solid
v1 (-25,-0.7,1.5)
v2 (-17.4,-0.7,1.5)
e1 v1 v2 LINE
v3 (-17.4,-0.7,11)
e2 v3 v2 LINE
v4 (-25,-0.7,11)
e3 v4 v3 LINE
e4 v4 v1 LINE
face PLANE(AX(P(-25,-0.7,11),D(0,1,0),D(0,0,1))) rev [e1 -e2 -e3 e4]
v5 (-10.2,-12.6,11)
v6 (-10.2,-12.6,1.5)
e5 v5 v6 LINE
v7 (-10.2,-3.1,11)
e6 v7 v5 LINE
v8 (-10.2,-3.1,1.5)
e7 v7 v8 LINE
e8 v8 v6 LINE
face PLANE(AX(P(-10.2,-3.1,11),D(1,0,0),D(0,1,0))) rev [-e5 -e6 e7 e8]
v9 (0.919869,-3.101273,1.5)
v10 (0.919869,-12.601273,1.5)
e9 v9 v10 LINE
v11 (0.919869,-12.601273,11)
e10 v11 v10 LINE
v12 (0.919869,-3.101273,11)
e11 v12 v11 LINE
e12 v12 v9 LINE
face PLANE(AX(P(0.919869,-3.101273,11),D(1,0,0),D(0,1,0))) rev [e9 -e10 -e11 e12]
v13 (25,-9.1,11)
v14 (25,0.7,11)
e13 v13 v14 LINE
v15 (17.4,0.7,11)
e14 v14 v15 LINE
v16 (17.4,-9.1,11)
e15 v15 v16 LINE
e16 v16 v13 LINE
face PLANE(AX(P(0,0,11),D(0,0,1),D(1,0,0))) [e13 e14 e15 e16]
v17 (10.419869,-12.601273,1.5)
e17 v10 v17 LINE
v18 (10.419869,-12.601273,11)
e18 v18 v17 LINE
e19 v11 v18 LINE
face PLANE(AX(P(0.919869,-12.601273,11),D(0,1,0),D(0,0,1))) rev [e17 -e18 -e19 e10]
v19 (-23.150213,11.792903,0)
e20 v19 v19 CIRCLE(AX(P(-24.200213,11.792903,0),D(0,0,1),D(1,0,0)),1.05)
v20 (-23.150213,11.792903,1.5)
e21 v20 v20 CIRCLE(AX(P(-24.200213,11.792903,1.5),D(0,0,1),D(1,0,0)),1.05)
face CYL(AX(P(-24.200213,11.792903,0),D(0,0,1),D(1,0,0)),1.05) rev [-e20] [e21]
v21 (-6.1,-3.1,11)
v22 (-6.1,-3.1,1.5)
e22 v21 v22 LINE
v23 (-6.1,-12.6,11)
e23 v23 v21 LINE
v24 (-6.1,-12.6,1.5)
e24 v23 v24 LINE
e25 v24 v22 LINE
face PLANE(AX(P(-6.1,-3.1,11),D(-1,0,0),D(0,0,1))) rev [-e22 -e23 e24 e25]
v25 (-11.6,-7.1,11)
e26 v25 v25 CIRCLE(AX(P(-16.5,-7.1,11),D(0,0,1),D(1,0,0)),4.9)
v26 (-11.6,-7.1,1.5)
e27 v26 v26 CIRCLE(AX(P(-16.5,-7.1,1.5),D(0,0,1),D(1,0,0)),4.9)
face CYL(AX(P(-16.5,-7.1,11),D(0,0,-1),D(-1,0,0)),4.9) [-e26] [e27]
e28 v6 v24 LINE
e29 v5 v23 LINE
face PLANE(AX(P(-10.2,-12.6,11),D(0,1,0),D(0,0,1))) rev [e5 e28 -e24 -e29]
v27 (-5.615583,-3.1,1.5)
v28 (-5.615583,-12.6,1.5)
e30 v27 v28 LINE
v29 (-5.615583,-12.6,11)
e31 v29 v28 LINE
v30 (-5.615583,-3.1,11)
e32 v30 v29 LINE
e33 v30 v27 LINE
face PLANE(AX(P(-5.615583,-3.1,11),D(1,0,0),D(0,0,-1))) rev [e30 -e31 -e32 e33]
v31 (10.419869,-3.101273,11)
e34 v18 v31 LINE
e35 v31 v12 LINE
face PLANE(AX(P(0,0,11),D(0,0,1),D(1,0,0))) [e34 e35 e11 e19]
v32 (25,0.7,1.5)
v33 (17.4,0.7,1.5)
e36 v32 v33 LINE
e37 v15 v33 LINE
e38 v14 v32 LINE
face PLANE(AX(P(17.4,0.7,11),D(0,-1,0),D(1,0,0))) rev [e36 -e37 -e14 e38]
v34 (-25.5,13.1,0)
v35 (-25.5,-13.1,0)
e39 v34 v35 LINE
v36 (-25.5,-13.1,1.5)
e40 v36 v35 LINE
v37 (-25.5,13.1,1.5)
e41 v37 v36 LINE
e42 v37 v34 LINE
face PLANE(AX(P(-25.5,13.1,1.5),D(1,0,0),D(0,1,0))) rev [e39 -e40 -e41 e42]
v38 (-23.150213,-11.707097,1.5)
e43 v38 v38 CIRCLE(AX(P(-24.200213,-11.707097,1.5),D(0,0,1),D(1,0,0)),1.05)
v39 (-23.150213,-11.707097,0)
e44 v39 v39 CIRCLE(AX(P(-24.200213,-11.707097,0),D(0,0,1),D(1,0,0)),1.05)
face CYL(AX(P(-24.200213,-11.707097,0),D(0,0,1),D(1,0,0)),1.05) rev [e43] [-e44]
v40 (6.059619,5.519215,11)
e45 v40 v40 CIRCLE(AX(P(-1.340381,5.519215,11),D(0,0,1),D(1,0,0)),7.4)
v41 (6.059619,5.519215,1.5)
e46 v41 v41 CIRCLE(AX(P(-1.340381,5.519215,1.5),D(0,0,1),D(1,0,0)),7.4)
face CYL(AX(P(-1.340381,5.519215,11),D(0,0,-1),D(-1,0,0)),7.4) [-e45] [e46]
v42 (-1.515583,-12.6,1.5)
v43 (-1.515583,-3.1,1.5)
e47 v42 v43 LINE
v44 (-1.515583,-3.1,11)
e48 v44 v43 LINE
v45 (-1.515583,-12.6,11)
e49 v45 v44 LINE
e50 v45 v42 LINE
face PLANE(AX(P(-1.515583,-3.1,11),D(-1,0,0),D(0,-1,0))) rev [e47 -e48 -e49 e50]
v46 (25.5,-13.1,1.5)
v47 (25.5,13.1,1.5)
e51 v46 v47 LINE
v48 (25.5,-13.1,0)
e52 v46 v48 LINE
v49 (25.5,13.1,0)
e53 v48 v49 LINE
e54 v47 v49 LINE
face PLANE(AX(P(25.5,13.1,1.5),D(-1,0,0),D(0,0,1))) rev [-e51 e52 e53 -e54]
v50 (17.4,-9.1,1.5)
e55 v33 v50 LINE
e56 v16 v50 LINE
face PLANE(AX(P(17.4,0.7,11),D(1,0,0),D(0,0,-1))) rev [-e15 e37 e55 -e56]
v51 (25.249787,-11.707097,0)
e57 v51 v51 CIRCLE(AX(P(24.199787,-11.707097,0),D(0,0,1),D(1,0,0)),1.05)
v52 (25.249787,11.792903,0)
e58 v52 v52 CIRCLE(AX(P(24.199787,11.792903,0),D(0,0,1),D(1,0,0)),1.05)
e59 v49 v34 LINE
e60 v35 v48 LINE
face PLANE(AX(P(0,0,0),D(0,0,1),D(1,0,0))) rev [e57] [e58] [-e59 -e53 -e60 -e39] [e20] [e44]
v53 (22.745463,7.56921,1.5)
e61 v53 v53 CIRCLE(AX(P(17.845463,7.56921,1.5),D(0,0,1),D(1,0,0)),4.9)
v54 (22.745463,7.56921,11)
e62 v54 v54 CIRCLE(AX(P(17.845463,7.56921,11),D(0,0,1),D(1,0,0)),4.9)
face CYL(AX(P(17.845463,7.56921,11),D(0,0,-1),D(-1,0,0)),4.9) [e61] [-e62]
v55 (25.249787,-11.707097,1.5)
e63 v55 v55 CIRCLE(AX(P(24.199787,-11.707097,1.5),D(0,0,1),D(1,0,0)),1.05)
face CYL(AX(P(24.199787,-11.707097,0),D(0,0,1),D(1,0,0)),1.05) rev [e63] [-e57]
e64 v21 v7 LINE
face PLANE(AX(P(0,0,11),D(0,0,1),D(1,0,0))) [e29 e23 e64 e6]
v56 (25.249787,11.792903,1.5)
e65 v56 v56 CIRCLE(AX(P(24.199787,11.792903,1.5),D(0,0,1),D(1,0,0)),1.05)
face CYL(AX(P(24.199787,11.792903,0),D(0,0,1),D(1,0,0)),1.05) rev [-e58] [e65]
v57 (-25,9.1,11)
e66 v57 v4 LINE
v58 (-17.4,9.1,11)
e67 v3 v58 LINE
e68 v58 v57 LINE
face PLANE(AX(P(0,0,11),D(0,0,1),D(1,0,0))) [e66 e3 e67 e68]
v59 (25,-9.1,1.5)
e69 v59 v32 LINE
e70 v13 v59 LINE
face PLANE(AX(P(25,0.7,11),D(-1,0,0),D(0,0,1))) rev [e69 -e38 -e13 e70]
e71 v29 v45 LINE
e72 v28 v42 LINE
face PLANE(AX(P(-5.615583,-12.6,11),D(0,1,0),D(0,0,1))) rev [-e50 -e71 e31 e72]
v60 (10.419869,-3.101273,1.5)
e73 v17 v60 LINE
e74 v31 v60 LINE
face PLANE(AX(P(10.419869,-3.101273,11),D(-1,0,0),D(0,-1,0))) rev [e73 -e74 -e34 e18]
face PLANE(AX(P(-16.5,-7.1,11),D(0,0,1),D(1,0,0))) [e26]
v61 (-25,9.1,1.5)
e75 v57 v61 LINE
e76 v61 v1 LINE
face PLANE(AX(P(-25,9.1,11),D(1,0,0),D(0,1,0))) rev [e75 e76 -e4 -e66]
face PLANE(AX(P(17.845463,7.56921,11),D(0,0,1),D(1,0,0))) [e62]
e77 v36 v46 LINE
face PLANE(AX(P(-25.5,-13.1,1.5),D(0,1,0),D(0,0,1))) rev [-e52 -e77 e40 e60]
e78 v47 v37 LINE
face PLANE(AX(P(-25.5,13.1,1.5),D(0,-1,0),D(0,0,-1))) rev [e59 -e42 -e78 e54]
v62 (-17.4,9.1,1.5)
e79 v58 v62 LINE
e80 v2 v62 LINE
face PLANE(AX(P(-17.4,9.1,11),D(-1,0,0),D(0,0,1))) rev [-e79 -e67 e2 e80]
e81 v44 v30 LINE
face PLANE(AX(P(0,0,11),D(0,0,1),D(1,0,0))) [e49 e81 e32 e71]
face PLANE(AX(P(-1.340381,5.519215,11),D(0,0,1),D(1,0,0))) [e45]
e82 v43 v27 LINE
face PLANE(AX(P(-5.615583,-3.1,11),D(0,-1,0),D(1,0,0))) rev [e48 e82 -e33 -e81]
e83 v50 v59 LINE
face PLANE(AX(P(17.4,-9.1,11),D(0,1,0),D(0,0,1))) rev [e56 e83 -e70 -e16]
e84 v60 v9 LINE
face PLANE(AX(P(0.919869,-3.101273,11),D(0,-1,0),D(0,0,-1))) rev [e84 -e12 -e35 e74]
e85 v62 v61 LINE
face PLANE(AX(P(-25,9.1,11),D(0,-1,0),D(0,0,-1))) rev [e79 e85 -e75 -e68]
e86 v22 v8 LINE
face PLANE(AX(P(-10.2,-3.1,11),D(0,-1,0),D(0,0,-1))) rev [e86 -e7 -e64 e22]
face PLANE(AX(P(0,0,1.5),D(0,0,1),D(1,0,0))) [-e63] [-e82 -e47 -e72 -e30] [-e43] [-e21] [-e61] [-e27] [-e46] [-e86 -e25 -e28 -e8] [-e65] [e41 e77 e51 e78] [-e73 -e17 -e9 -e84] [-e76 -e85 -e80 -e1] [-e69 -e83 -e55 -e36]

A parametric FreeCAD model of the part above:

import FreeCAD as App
import Part
import Sketcher

V = App.Vector
Q = App.Units.Quantity


def add_polygon(sketch, points):
    """Adds a closed chain of lines whose ends are joined by coincident constraints."""
    first, n = sketch.GeometryCount, len(points)
    for a, b in zip(points, points[1:] + points[:1]):
        sketch.addGeometry(Part.LineSegment(App.Vector(*a, 0), App.Vector(*b, 0)), False)
    for i in range(n):
        sketch.addConstraint(Sketcher.Constraint("Coincident", first + i, 2, first + (i + 1) % n, 1))

doc = App.newDocument("Part")
body = doc.addObject("PartDesign::Body", "Body")

sketch1 = body.newObject("Sketcher::SketchObject", "Sketch")
sketch1.AttachmentSupport = (doc.getObject("XY_Plane"), [""])
sketch1.MapMode = "FlatFace"
add_polygon(sketch1, [(-26, 13), (-26, -13), (26, -13), (26, 13)])
sketch1.addConstraint(Sketcher.Constraint("Vertical", 0))
sketch1.addConstraint(Sketcher.Constraint("Horizontal", 1))
sketch1.addConstraint(Sketcher.Constraint("Vertical", 2))
sketch1.addConstraint(Sketcher.Constraint("Horizontal", 3))
sketch1.addConstraint(Sketcher.Constraint("Symmetric", 0, 2, 2, 2, -1, 1))
sketch1.addConstraint(Sketcher.Constraint("DistanceX", 1, 1, 1, 2, Q("51 mm")))
sketch1.addConstraint(Sketcher.Constraint("DistanceY", 0, 2, 0, 1, Q("26.2 mm")))
pad1 = body.newObject("PartDesign::Pad", "Pad")
pad1.Profile = sketch1
pad1.Length = 1.5

sketch2 = body.newObject("Sketcher::SketchObject", "Sketch001")
sketch2.AttachmentSupport = (doc.getObject("XY_Plane"), [""])
sketch2.MapMode = "FlatFace"
sketch2.AttachmentOffset = App.Placement(V(0, 0, 1.5), App.Rotation())
sketch2.addGeometry(Part.Circle(V(17.8, 7.6, 0), V(0, 0, 1), 4.9), False)
sketch2.addGeometry(Part.Circle(V(-1.3, 5.5, 0), V(0, 0, 1), 7.4), False)
sketch2.addGeometry(Part.Circle(V(-16.5, -7.1, 0), V(0, 0, 1), 4.9), False)
add_polygon(sketch2, [(-25, 9.1), (-25, -0.7), (-17.4, -0.7), (-17.4, 9.1)])
add_polygon(sketch2, [(17.4, 0.7), (17.4, -9.1), (25, -9.1), (25, 0.7)])
add_polygon(sketch2, [(-10.2, -3.1), (-10.2, -12.6), (-6.1, -12.6), (-6.1, -3.1)])
add_polygon(sketch2, [(-5.6, -3.1), (-5.6, -12.6), (-1.5, -12.6), (-1.5, -3.1)])
add_polygon(sketch2, [(0.9, -3.1), (0.9, -12.6), (10.4, -12.6), (10.4, -3.1)])
sketch2.addConstraint(Sketcher.Constraint("Vertical", 3))
sketch2.addConstraint(Sketcher.Constraint("Horizontal", 4))
sketch2.addConstraint(Sketcher.Constraint("Vertical", 5))
sketch2.addConstraint(Sketcher.Constraint("Horizontal", 6))
sketch2.addConstraint(Sketcher.Constraint("Vertical", 7))
sketch2.addConstraint(Sketcher.Constraint("Horizontal", 8))
sketch2.addConstraint(Sketcher.Constraint("Vertical", 9))
sketch2.addConstraint(Sketcher.Constraint("Horizontal", 10))
sketch2.addConstraint(Sketcher.Constraint("Vertical", 11))
sketch2.addConstraint(Sketcher.Constraint("Horizontal", 12))
sketch2.addConstraint(Sketcher.Constraint("Vertical", 13))
sketch2.addConstraint(Sketcher.Constraint("Horizontal", 14))
sketch2.addConstraint(Sketcher.Constraint("Vertical", 15))
sketch2.addConstraint(Sketcher.Constraint("Horizontal", 16))
sketch2.addConstraint(Sketcher.Constraint("Vertical", 17))
sketch2.addConstraint(Sketcher.Constraint("Horizontal", 18))
sketch2.addConstraint(Sketcher.Constraint("Vertical", 19))
sketch2.addConstraint(Sketcher.Constraint("Horizontal", 20))
sketch2.addConstraint(Sketcher.Constraint("Vertical", 21))
sketch2.addConstraint(Sketcher.Constraint("Horizontal", 22))
sketch2.addConstraint(Sketcher.Constraint("Equal", 0, 2))
sketch2.addConstraint(Sketcher.Constraint("Symmetric", 5, 2, 7, 2, -1, 1))
sketch2.addConstraint(Sketcher.Constraint("Symmetric", 3, 2, 9, 2, -1, 1))
sketch2.addConstraint(Sketcher.Constraint("Horizontal", 12, 2, 15, 2))
sketch2.addConstraint(Sketcher.Constraint("Horizontal", 14, 2, 17, 2))
sketch2.addConstraint(Sketcher.Constraint("Equal", 14, 16))
sketch2.addConstraint(Sketcher.Constraint("Equal", 22, 11))
sketch2.addConstraint(Sketcher.Constraint("Equal", 17, 19))
sketch2.addConstraint(Sketcher.Constraint("Diameter", 0, Q("9.8 mm")))
sketch2.addConstraint(Sketcher.Constraint("Diameter", 1, Q("14.8 mm")))
sketch2.addConstraint(Sketcher.Constraint("DistanceX", 4, 1, 4, 2, Q("7.6 mm")))
sketch2.addConstraint(Sketcher.Constraint("DistanceX", 12, 1, 12, 2, Q("4.1 mm")))
sketch2.addConstraint(Sketcher.Constraint("DistanceX", 20, 1, 20, 2, Q("9.5 mm")))
sketch2.addConstraint(Sketcher.Constraint("DistanceY", 3, 2, 3, 1, Q("9.8 mm")))
sketch2.addConstraint(Sketcher.Constraint("DistanceX", 3, 2, -1, 1, Q("25 mm")))
sketch2.addConstraint(Sketcher.Constraint("DistanceY", 7, 2, 2, 3, Q("2 mm")))
sketch2.addConstraint(Sketcher.Constraint("DistanceY", 2, 3, 13, 2, Q("4 mm")))
sketch2.addConstraint(Sketcher.Constraint("DistanceX", 2, 3, -1, 1, Q("16.5 mm")))
sketch2.addConstraint(Sketcher.Constraint("DistanceY", 2, 3, -1, 1, Q("7.1 mm")))
sketch2.addConstraint(Sketcher.Constraint("DistanceX", 11, 2, -1, 1, Q("10.2 mm")))
sketch2.addConstraint(Sketcher.Constraint("DistanceX", 17, 2, 1, 3, Q("0.175202 mm")))
sketch2.addConstraint(Sketcher.Constraint("DistanceY", -1, 1, 0, 3, Q("7.56921 mm")))
sketch2.addConstraint(Sketcher.Constraint("DistanceX", 1, 3, -1, 1, Q("1.340381 mm")))
sketch2.addConstraint(Sketcher.Constraint("DistanceX", -1, 1, 19, 2, Q("0.919869 mm")))
sketch2.addConstraint(Sketcher.Constraint("DistanceY", 22, 2, 1, 3, Q("8.620489 mm")))
sketch2.addConstraint(Sketcher.Constraint("DistanceX", -1, 1, 0, 3, Q("17.845463 mm")))
sketch2.addConstraint(Sketcher.Constraint("DistanceY", -1, 1, 1, 3, Q("5.519215 mm")))
pad2 = body.newObject("PartDesign::Pad", "Pad001")
pad2.Profile = sketch2
pad2.Length = 9.5

sketch3 = body.newObject("Sketcher::SketchObject", "Sketch002")
sketch3.AttachmentSupport = (doc.getObject("XY_Plane"), [""])
sketch3.MapMode = "FlatFace"
sketch3.AttachmentOffset = App.Placement(V(0, 0, 1.5), App.Rotation())
sketch3.addGeometry(Part.Circle(V(-24.2, 11.8, 0), V(0, 0, 1), 1.1), False)
sketch3.addGeometry(Part.Circle(V(24.2, 11.8, 0), V(0, 0, 1), 1.1), False)
sketch3.addGeometry(Part.Circle(V(24.2, -11.7, 0), V(0, 0, 1), 1.1), False)
sketch3.addGeometry(Part.Circle(V(-24.2, -11.7, 0), V(0, 0, 1), 1.1), False)
sketch3.addConstraint(Sketcher.Constraint("Equal", 0, 1))
sketch3.addConstraint(Sketcher.Constraint("Equal", 1, 2))
sketch3.addConstraint(Sketcher.Constraint("Equal", 2, 3))
sketch3.addConstraint(Sketcher.Constraint("Horizontal", 0, 3, 1, 3))
sketch3.addConstraint(Sketcher.Constraint("Horizontal", 2, 3, 3, 3))
sketch3.addConstraint(Sketcher.Constraint("Vertical", 1, 3, 2, 3))
sketch3.addConstraint(Sketcher.Constraint("Vertical", 0, 3, 3, 3))
sketch3.addConstraint(Sketcher.Constraint("Diameter", 0, Q("2.1 mm")))
sketch3.addConstraint(Sketcher.Constraint("DistanceX", 0, 3, 1, 3, Q("48.4 mm")))
sketch3.addConstraint(Sketcher.Constraint("DistanceY", 2, 3, 1, 3, Q("23.5 mm")))
sketch3.addConstraint(Sketcher.Constraint("DistanceX", 0, 3, -1, 1, Q("24.200213 mm")))
sketch3.addConstraint(Sketcher.Constraint("DistanceY", -1, 1, 0, 3, Q("11.792903 mm")))
pocket1 = body.newObject("PartDesign::Pocket", "Pocket")
pocket1.Profile = sketch3
pocket1.Type = "ThroughAll"

doc.recompute()
